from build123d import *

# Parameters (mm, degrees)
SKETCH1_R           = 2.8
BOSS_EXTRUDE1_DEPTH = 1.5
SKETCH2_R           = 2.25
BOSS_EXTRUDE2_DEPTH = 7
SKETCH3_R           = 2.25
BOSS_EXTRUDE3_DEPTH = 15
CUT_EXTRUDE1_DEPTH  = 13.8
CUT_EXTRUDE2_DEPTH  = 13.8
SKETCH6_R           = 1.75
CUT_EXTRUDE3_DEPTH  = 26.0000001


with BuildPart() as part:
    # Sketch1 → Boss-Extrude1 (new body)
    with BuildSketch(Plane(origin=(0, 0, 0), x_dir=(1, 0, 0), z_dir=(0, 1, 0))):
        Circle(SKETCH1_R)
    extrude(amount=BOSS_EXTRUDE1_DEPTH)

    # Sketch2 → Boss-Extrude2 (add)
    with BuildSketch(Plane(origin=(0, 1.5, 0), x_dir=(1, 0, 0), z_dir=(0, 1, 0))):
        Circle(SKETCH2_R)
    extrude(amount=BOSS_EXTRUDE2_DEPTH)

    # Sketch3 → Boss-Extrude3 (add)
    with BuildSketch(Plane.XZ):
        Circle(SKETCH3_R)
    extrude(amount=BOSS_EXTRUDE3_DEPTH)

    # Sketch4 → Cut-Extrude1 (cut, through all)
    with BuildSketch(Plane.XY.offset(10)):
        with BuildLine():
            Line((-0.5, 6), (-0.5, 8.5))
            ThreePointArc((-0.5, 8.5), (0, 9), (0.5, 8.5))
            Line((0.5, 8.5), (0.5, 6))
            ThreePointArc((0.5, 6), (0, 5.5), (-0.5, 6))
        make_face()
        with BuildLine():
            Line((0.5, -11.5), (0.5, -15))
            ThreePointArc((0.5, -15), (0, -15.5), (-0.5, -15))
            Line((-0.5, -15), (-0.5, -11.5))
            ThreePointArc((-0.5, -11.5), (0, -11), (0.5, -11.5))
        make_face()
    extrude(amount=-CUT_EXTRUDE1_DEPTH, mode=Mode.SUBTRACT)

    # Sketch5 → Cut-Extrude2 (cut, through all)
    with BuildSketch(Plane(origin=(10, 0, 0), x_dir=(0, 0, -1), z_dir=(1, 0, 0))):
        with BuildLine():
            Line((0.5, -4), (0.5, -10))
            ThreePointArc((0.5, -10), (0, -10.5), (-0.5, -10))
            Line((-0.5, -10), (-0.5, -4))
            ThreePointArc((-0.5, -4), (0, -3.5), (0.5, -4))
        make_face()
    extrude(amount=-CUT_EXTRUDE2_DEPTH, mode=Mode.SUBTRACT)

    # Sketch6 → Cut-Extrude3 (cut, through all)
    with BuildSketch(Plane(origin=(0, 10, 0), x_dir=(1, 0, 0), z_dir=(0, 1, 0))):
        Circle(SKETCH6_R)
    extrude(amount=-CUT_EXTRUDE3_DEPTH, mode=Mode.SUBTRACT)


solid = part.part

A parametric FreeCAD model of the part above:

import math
import FreeCAD as App
import Part
import Sketcher

V = App.Vector

doc = App.newDocument("Part")
body = doc.addObject("PartDesign::Body", "Body")

# Sketch on XZ plane
sketch1 = body.newObject("Sketcher::SketchObject", "Sketch")
sketch1.AttachmentSupport = (doc.getObject("XZ_Plane"), [""])
sketch1.MapMode = "FlatFace"
sketch1.addGeometry(Part.Circle(V(0, 0, 0), V(0, 0, 1), 2.8), False)
sketch1.addConstraint([
    Sketcher.Constraint("Coincident", 0, 3, -1, 1),
    Sketcher.Constraint("Diameter", 0, 5.6),
])
pad1 = body.newObject("PartDesign::Pad", "Pad")
pad1.Profile = sketch1
pad1.Length = 1.5
pad1.Reversed = True

# Sketch on XZ plane
sketch2 = body.newObject("Sketcher::SketchObject", "Sketch001")
sketch2.AttachmentSupport = (doc.getObject("XZ_Plane"), [""])
sketch2.MapMode = "FlatFace"
sketch2.AttachmentOffset = App.Placement(V(0, 0, -1.5), App.Rotation())
sketch2.addGeometry(Part.Circle(V(0, 0, 0), V(0, 0, 1), 2.2), False)
sketch2.addConstraint([
    Sketcher.Constraint("Coincident", 0, 3, -1, 1),
    Sketcher.Constraint("Diameter", 0, 4.5),
])
pad2 = body.newObject("PartDesign::Pad", "Pad001")
pad2.Profile = sketch2
pad2.Length = 7
pad2.Reversed = True

# Sketch on XZ plane
sketch3 = body.newObject("Sketcher::SketchObject", "Sketch002")
sketch3.AttachmentSupport = (doc.getObject("XZ_Plane"), [""])
sketch3.MapMode = "FlatFace"
sketch3.addGeometry(Part.Circle(V(0, 0, 0), V(0, 0, 1), 2.2), False)
sketch3.addConstraint([
    Sketcher.Constraint("Coincident", 0, 3, -1, 1),
    Sketcher.Constraint("Diameter", 0, 4.5),
])
pad3 = body.newObject("PartDesign::Pad", "Pad002")
pad3.Profile = sketch3
pad3.Length = 15

# Sketch on XY plane
sketch4 = body.newObject("Sketcher::SketchObject", "Sketch003")
sketch4.AttachmentSupport = (doc.getObject("XY_Plane"), [""])
sketch4.MapMode = "FlatFace"
sketch4.AttachmentOffset = App.Placement(V(0, 0, 10), App.Rotation())
sketch4.addGeometry([
    Part.LineSegment(V(-0.5, 8.5, 0), V(-0.5, 6, 0)),  # 0
    Part.ArcOfCircle(Part.Circle(V(0, 6, 0), V(0, 0, 1), 0.5), math.radians(180), math.radians(360)),  # 1
    Part.LineSegment(V(0.5, 6, 0), V(0.5, 8.5, 0)),  # 2
    Part.ArcOfCircle(Part.Circle(V(0, 8.5, 0), V(0, 0, 1), 0.5), math.radians(0), math.radians(180)),  # 3
    Part.LineSegment(V(0.5, -15, 0), V(0.5, -11.5, 0)),  # 4
    Part.ArcOfCircle(Part.Circle(V(0, -11.5, 0), V(0, 0, 1), 0.5), math.radians(0), math.radians(180)),  # 5
    Part.LineSegment(V(-0.5, -11.5, 0), V(-0.5, -15, 0)),  # 6
    Part.ArcOfCircle(Part.Circle(V(0, -15, 0), V(0, 0, 1), 0.5), math.radians(180), math.radians(360)),  # 7
], False)
sketch4.addConstraint([
    Sketcher.Constraint("Tangent", 0, 2, 1, 1),
    Sketcher.Constraint("Tangent", 1, 2, 2, 1),
    Sketcher.Constraint("Tangent", 2, 2, 3, 1),
    Sketcher.Constraint("Tangent", 3, 2, 0, 1),
    Sketcher.Constraint("Tangent", 4, 2, 5, 1),
    Sketcher.Constraint("Tangent", 5, 2, 6, 1),
    Sketcher.Constraint("Tangent", 6, 2, 7, 1),
    Sketcher.Constraint("Tangent", 7, 2, 4, 1),
    Sketcher.Constraint("Vertical", 0),
    Sketcher.Constraint("Vertical", 2),
    Sketcher.Constraint("Vertical", 4),
    Sketcher.Constraint("Vertical", 6),
    Sketcher.Constraint("Equal", 3, 5),
    Sketcher.Constraint("PointOnObject", 1, 3, -2),
    Sketcher.Constraint("PointOnObject", 5, 3, -2),
    Sketcher.Constraint("Radius", 1, 0.5),
    Sketcher.Constraint("DistanceY", 0, 2, 0, 1, 2.5),
    Sketcher.Constraint("DistanceY", 4, 1, 4, 2, 3.5),
    Sketcher.Constraint("DistanceY", -1, 1, 1, 3, 6.0),
    Sketcher.Constraint("DistanceY", 7, 3, -1, 1, 15.0),
])
pocket1 = body.newObject("PartDesign::Pocket", "Pocket")
pocket1.Profile = sketch4
pocket1.Type = "ThroughAll"

# Sketch on YZ plane
sketch5 = body.newObject("Sketcher::SketchObject", "Sketch004")
sketch5.AttachmentSupport = (doc.getObject("YZ_Plane"), [""])
sketch5.MapMode = "FlatFace"
sketch5.AttachmentOffset = App.Placement(V(0, 0, 10), App.Rotation())
sketch5.addGeometry([
    Part.LineSegment(V(-10, -0.5, 0), V(-4, -0.5, 0)),
    Part.ArcOfCircle(Part.Circle(V(-4, 0, 0), V(0, 0, 1), 0.5), math.radians(-90), math.radians(90)),
    Part.LineSegment(V(-4, 0.5, 0), V(-10, 0.5, 0)),
    Part.ArcOfCircle(Part.Circle(V(-10, 0, 0), V(0, 0, 1), 0.5), math.radians(90), math.radians(270)),
], False)
sketch5.addConstraint([
    Sketcher.Constraint("Tangent", 0, 2, 1, 1),
    Sketcher.Constraint("Tangent", 1, 2, 2, 1),
    Sketcher.Constraint("Tangent", 2, 2, 3, 1),
    Sketcher.Constraint("Tangent", 3, 2, 0, 1),
    Sketcher.Constraint("Horizontal", 0),
    Sketcher.Constraint("Horizontal", 2),
    Sketcher.Constraint("PointOnObject", 1, 3, -1),
    Sketcher.Constraint("Radius", 1, 0.5),
    Sketcher.Constraint("DistanceX", 0, 1, 0, 2, 6.0),
    Sketcher.Constraint("DistanceX", 1, 3, -1, 1, 4.0),
])
pocket2 = body.newObject("PartDesign::Pocket", "Pocket001")
pocket2.Profile = sketch5
pocket2.Type = "ThroughAll"

# Sketch on XZ plane
sketch6 = body.newObject("Sketcher::SketchObject", "Sketch005")
sketch6.AttachmentSupport = (doc.getObject("XZ_Plane"), [""])
sketch6.MapMode = "FlatFace"
sketch6.AttachmentOffset = App.Placement(V(0, 0, -10), App.Rotation())
sketch6.addGeometry(Part.Circle(V(0, 0, 0), V(0, 0, 1), 1.8), False)
sketch6.addConstraint([
    Sketcher.Constraint("Coincident", 0, 3, -1, 1),
    Sketcher.Constraint("Diameter", 0, 3.5),
])
pocket3 = body.newObject("PartDesign::Pocket", "Pocket002")
pocket3.Profile = sketch6
pocket3.Type = "ThroughAll"
pocket3.Reversed = True

doc.recompute()
